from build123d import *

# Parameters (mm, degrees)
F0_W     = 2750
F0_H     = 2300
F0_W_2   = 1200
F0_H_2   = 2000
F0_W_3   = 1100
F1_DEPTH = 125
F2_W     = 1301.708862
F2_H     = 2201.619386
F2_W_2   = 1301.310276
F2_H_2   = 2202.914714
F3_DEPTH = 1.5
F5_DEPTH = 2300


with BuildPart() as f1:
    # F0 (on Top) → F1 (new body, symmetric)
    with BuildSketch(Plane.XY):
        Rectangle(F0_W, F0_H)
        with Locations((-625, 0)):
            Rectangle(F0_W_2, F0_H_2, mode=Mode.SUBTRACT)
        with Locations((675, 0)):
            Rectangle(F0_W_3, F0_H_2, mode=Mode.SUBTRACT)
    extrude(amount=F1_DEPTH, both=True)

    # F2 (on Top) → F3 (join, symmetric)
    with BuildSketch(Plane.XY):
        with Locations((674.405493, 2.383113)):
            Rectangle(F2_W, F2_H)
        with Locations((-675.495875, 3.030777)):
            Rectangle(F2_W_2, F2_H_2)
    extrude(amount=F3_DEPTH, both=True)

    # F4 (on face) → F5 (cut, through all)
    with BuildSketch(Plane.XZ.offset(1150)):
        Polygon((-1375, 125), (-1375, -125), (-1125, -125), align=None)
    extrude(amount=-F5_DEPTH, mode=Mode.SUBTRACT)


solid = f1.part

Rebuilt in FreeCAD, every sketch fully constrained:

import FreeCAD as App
import Part
import Sketcher


def add_polygon(sketch, points):
    """Adds a closed chain of lines whose ends are joined by coincident constraints."""
    first, n = sketch.GeometryCount, len(points)
    for a, b in zip(points, points[1:] + points[:1]):
        sketch.addGeometry(Part.LineSegment(App.Vector(*a, 0), App.Vector(*b, 0)), False)
    for i in range(n):
        sketch.addConstraint(Sketcher.Constraint("Coincident", first + i, 2, first + (i + 1) % n, 1))

doc = App.newDocument("Part")
params = doc.addObject("Spreadsheet::Sheet", "Params")
for row, (alias, value) in enumerate([
    ("sketch1_width", "2750 mm"),
    ("sketch1_width2", "1200 mm"),
    ("sketch1_width3", "1100 mm"),
    ("sketch1_height", "2300 mm"),
    ("sketch1_height2", "2000 mm"),
    ("pad1_length", "250 mm"),
    ("pad2_length", "3 mm"),
    ("sketch3_width", "250 mm"),
], start=1):
    params.set(f"A{row}", alias)
    params.set(f"B{row}", "=" + value)
    params.setAlias(f"B{row}", alias)

body = doc.addObject("PartDesign::Body", "Body")

# Sketch on XY plane
sketch1 = body.newObject("Sketcher::SketchObject", "Sketch")
sketch1.AttachmentSupport = (doc.getObject("XY_Plane"), [""])
sketch1.MapMode = "FlatFace"
add_polygon(sketch1, [(-1375, 1150), (-1375, -1150), (1375, -1150), (1375, 1150)])  # lines 0-3
add_polygon(sketch1, [(-25, -1000), (-1225, -1000), (-1225, 1000), (-25, 1000)])  # lines 4-7
add_polygon(sketch1, [(1225, -1000), (125, -1000), (125, 1000), (1225, 1000)])  # lines 8-11
sketch1.addConstraint([
    Sketcher.Constraint("Vertical", 0),
    Sketcher.Constraint("Horizontal", 1),
    Sketcher.Constraint("Vertical", 2),
    Sketcher.Constraint("Horizontal", 3),
    Sketcher.Constraint("Horizontal", 4),
    Sketcher.Constraint("Vertical", 5),
    Sketcher.Constraint("Horizontal", 6),
    Sketcher.Constraint("Vertical", 7),
    Sketcher.Constraint("Horizontal", 8),
    Sketcher.Constraint("Vertical", 9),
    Sketcher.Constraint("Horizontal", 10),
    Sketcher.Constraint("Vertical", 11),
    Sketcher.Constraint("Symmetric", 0, 2, 2, 2, -1, 1),
    Sketcher.Constraint("Symmetric", 4, 2, 10, 2, -1, 1),
    Sketcher.Constraint("Horizontal", 7, 2, 8, 2),
    Sketcher.Constraint("Horizontal", 6, 2, 9, 2),
    Sketcher.Constraint("DistanceX", 1, 1, 1, 2, 2750.0),
    Sketcher.Constraint("DistanceX", 4, 2, 4, 1, 1200.0),
    Sketcher.Constraint("DistanceX", 8, 2, 8, 1, 1100.0),
    Sketcher.Constraint("DistanceY", 0, 2, 0, 1, 2300.0),
    Sketcher.Constraint("DistanceY", 5, 1, 5, 2, 2000.0),
    Sketcher.Constraint("DistanceX", 4, 2, -1, 1, 1225.0),
])
sketch1.setExpression("Constraints[28]", "Params.sketch1_width")
sketch1.setExpression("Constraints[29]", "Params.sketch1_width2")
sketch1.setExpression("Constraints[30]", "Params.sketch1_width3")
sketch1.setExpression("Constraints[31]", "Params.sketch1_height")
sketch1.setExpression("Constraints[32]", "Params.sketch1_height2")
pad1 = body.newObject("PartDesign::Pad", "Pad")
pad1.Profile = sketch1
pad1.setExpression("Length", "Params.pad1_length")
pad1.Midplane = True

# Sketch on XY plane
sketch2 = body.newObject("Sketcher::SketchObject", "Sketch001")
sketch2.AttachmentSupport = (doc.getObject("XY_Plane"), [""])
sketch2.MapMode = "FlatFace"
add_polygon(sketch2, [(24, 1103), (24, -1098), (1325, -1098), (1325, 1103)])  # lines 0-3
add_polygon(sketch2, [(-1326, 1104), (-1326, -1098), (-25, -1098), (-25, 1104)])  # lines 4-7
sketch2.addConstraint([
    Sketcher.Constraint("Vertical", 0),
    Sketcher.Constraint("Horizontal", 1),
    Sketcher.Constraint("Vertical", 2),
    Sketcher.Constraint("Horizontal", 3),
    Sketcher.Constraint("Vertical", 4),
    Sketcher.Constraint("Horizontal", 5),
    Sketcher.Constraint("Vertical", 6),
    Sketcher.Constraint("Horizontal", 7),
    Sketcher.Constraint("Horizontal", 1, 2, 4, 2),
    Sketcher.Constraint("DistanceX", 1, 1, 1, 2, 1301.708862),
    Sketcher.Constraint("DistanceX", 5, 2, 0, 2, 48.391799),
    Sketcher.Constraint("DistanceX", 5, 1, 5, 2, 1301.310276),
    Sketcher.Constraint("DistanceY", 0, 2, 0, 1, 2201.619386),
    Sketcher.Constraint("DistanceY", 4, 2, 4, 1, 2202.914714),
    Sketcher.Constraint("DistanceY", 0, 2, -1, 1, 1098.42658),
    Sketcher.Constraint("DistanceX", -1, 1, 0, 2, 23.551062),
])
pad2 = body.newObject("PartDesign::Pad", "Pad001")
pad2.Profile = sketch2
pad2.setExpression("Length", "Params.pad2_length")
pad2.Midplane = True

# Sketch on XZ plane
sketch3 = body.newObject("Sketcher::SketchObject", "Sketch002")
sketch3.AttachmentSupport = (doc.getObject("XZ_Plane"), [""])
sketch3.MapMode = "FlatFace"
sketch3.AttachmentOffset = App.Placement(App.Vector(0, 0, 1150), App.Rotation())
add_polygon(sketch3, [(-1375, 125), (-1375, -125), (-1125, -125)])  # lines 0-2
sketch3.addConstraint([
    Sketcher.Constraint("Vertical", 0),
    Sketcher.Constraint("Horizontal", 1),
    Sketcher.Constraint("Equal", 1, 0),
    Sketcher.Constraint("DistanceX", 1, 1, 1, 2, 250.0),
    Sketcher.Constraint("DistanceX", 0, 2, -1, 1, 1375.0),
    Sketcher.Constraint("DistanceY", 0, 2, -1, 1, 125.0),
])
sketch3.setExpression("Constraints[6]", "Params.sketch3_width")
pocket1 = body.newObject("PartDesign::Pocket", "Pocket")
pocket1.Profile = sketch3
pocket1.Type = "ThroughAll"

doc.recompute()
